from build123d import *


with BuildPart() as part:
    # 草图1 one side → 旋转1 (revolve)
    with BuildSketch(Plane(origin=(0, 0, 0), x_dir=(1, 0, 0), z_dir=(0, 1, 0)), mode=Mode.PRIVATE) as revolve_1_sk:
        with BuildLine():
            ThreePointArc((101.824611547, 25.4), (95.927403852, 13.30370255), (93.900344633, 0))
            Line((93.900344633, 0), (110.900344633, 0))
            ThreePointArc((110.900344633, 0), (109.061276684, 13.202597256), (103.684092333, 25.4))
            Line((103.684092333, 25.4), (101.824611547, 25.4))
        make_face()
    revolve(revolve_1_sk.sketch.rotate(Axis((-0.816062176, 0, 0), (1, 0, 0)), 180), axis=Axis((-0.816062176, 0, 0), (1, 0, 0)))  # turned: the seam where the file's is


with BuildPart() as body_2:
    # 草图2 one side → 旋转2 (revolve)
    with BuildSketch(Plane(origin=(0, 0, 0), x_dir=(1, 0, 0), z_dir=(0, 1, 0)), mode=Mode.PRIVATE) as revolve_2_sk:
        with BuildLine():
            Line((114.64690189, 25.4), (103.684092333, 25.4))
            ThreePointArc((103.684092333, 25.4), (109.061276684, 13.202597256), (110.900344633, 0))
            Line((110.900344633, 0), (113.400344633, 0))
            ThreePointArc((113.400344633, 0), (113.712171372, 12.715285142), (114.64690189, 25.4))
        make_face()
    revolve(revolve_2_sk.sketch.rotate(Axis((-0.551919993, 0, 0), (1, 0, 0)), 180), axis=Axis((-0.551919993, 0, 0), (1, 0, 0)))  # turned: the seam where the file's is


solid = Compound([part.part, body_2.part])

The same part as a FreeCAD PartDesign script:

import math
import FreeCAD as App
import Part
import Sketcher
from FreeCAD import Vector
Q = App.Units.Quantity

doc = App.newDocument("Part")
body = doc.addObject("PartDesign::Body", "Body")

# Sketch on XZ plane
sketch1 = doc.addObject("Sketcher::SketchObject", "Sketch")
body.addObject(sketch1)
sketch1.AttachmentSupport = (doc.XZ_Plane, [""])
sketch1.MapMode = "FlatFace"
sketch1.addGeometry([
    Part.ArcOfCircle(Part.Circle(Vector(138.570345, 0, 0), Vector(0, 0, 1), 44.67), math.radians(-180), math.radians(-145.346348)),
    Part.LineSegment(Vector(93.900345, 0, 0), Vector(110.900345, 0, 0)),
    Part.ArcOfCircle(Part.Circle(Vector(62.590345, 0, 0), Vector(0, 0, 1), 48.31), math.radians(-31.720165), math.radians(0)),
    Part.LineSegment(Vector(103.684092, -25.4, 0), Vector(101.824612, -25.4, 0)),
], False)
sketch1.addConstraint([
    Sketcher.Constraint("Coincident", 0, 1, 1, 1),
    Sketcher.Constraint("Coincident", 1, 2, 2, 2),
    Sketcher.Constraint("Coincident", 2, 1, 3, 1),
    Sketcher.Constraint("Coincident", 3, 2, 0, 2),
    Sketcher.Constraint("Horizontal", 1),
    Sketcher.Constraint("Horizontal", 3),
    Sketcher.Constraint("PointOnObject", 0, 3, -1),
    Sketcher.Constraint("PointOnObject", 2, 3, -1),
    Sketcher.Constraint("PointOnObject", 0, 1, -1),
    Sketcher.Constraint("DistanceX", 1, 1, 1, 2, Q("17 mm")),
    Sketcher.Constraint("Radius", 0, Q("44.67 mm")),
    Sketcher.Constraint("Radius", 2, Q("48.31 mm")),
    Sketcher.Constraint("DistanceY", 2, 1, -1, 1, Q("25.4 mm")),
    Sketcher.Constraint("DistanceX", -1, 1, 3, 2, Q("101.824612 mm")),
])
revolution = doc.addObject("PartDesign::Revolution", "Revolution")
body.addObject(revolution)
revolution.Profile = sketch1
revolution.ReferenceAxis = (sketch1, ["H_Axis"])
revolution.Angle = 360
body2 = doc.addObject("PartDesign::Body", "Body001")

# Sketch on XZ plane
sketch2 = doc.addObject("Sketcher::SketchObject", "Sketch001")
body2.addObject(sketch2)
sketch2.AttachmentSupport = (doc.getObject("XZ_Plane001"), [""])
sketch2.MapMode = "FlatFace"
sketch2.addGeometry([
    Part.LineSegment(Vector(114.646902, -25.4, 0), Vector(103.684092, -25.4, 0)),
    Part.ArcOfCircle(Part.Circle(Vector(62.590345, 0, 0), Vector(0, 0, 1), 48.31), math.radians(-31.720165), math.radians(0)),
    Part.LineSegment(Vector(110.900345, 0, 0), Vector(113.400345, 0, 0)),
    Part.ArcOfCircle(Part.Circle(Vector(372.800345, 0, 0), Vector(0, 0, 1), 259.4), math.radians(-180), math.radians(-174.380692)),
], False)
sketch2.addConstraint([
    Sketcher.Constraint("Coincident", 0, 2, 1, 1),
    Sketcher.Constraint("Coincident", 1, 2, 2, 1),
    Sketcher.Constraint("Coincident", 2, 2, 3, 1),
    Sketcher.Constraint("Coincident", 3, 2, 0, 1),
    Sketcher.Constraint("Horizontal", 0),
    Sketcher.Constraint("Horizontal", 2),
    Sketcher.Constraint("PointOnObject", 1, 3, -1),
    Sketcher.Constraint("PointOnObject", 3, 3, -1),
    Sketcher.Constraint("PointOnObject", 1, 2, -1),
    Sketcher.Constraint("Radius", 3, Q("259.4 mm")),
    Sketcher.Constraint("Radius", 1, Q("48.31 mm")),
    Sketcher.Constraint("DistanceX", 2, 1, 2, 2, Q("2.5 mm")),
    Sketcher.Constraint("DistanceY", 0, 2, -1, 1, Q("25.4 mm")),
    Sketcher.Constraint("DistanceX", -1, 1, 3, 2, Q("114.646902 mm")),
])
revolution2 = doc.addObject("PartDesign::Revolution", "Revolution001")
body2.addObject(revolution2)
revolution2.Profile = sketch2
revolution2.ReferenceAxis = (sketch2, ["H_Axis"])
revolution2.Angle = 360

doc.recompute()
